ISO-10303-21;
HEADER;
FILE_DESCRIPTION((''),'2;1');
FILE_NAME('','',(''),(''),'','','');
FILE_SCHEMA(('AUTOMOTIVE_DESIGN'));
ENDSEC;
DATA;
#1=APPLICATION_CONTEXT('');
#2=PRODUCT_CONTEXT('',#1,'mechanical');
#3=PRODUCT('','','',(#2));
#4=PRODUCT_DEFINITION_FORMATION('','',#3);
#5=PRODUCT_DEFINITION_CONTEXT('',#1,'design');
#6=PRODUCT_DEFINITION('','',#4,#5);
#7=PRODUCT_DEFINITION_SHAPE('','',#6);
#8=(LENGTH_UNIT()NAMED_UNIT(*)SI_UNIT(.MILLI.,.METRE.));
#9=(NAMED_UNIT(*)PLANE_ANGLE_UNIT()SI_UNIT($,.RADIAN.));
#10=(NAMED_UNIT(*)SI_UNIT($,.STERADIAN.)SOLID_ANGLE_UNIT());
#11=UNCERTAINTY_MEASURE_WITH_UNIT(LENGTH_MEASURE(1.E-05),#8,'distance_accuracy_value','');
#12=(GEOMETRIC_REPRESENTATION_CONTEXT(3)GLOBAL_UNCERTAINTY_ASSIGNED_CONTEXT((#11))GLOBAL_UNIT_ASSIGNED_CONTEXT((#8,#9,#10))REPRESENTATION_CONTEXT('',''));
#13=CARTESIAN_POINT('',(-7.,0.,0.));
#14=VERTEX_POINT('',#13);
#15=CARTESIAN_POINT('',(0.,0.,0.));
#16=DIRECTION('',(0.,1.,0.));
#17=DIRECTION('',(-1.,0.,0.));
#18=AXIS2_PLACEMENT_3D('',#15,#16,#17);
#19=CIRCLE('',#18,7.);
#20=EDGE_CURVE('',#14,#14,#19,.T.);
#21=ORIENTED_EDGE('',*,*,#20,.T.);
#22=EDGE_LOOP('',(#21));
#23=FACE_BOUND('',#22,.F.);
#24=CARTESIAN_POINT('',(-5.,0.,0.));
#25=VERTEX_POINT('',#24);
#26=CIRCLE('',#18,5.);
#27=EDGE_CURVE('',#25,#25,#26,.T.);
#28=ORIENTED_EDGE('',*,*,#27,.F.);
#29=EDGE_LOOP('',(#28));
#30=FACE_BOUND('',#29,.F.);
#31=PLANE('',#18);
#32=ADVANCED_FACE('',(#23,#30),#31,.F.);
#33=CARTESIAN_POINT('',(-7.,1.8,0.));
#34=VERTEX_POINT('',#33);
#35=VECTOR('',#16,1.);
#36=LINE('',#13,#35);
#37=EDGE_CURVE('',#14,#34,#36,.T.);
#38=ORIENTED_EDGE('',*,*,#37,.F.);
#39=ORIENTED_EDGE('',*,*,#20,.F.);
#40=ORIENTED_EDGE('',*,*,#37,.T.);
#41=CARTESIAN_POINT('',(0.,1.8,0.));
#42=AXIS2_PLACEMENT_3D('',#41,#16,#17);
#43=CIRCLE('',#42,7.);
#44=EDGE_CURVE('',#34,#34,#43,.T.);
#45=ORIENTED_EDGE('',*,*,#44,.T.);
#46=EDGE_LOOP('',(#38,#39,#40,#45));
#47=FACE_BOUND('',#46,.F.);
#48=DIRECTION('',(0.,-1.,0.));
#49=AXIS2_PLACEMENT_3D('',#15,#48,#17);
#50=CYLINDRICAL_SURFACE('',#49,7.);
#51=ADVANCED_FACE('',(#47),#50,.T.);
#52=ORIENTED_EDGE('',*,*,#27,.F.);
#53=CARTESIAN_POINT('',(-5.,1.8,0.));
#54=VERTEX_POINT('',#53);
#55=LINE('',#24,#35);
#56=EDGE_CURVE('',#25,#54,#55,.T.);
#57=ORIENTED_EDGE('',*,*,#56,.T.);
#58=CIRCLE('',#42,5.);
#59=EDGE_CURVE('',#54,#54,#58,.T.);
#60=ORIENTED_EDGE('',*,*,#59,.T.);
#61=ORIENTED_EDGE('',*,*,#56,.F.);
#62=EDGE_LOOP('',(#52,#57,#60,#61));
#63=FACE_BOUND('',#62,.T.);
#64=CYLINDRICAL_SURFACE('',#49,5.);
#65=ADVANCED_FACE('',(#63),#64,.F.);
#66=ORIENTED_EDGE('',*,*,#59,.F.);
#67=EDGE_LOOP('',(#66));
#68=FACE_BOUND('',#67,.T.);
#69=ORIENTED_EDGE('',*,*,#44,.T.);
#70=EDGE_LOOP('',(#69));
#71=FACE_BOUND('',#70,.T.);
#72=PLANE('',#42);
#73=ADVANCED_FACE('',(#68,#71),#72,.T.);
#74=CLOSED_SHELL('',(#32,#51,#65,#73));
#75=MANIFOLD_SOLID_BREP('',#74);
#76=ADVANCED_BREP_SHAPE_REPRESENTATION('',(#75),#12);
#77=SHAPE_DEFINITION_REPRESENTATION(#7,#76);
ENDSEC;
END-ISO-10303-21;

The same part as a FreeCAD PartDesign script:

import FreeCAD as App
import Part
import Sketcher

V = App.Vector
Q = App.Units.Quantity

doc = App.newDocument("Part")
body = doc.addObject("PartDesign::Body", "Body")

# Sketch on XZ plane
sketch1 = body.newObject("Sketcher::SketchObject", "Sketch")
sketch1.AttachmentSupport = (doc.getObject("XZ_Plane"), [""])
sketch1.MapMode = "FlatFace"
sketch1.addGeometry([
    Part.Circle(V(0, 0, 0), V(0, 0, 1), 7),
    Part.Circle(V(0, 0, 0), V(0, 0, 1), 5),
], False)
sketch1.addConstraint([
    Sketcher.Constraint("Coincident", 0, 3, -1, 1),
    Sketcher.Constraint("Coincident", 1, 3, -1, 1),
    Sketcher.Constraint("Diameter", 0, Q("14 mm")),
    Sketcher.Constraint("Diameter", 1, Q("10 mm")),
])
pad1 = body.newObject("PartDesign::Pad", "Pad")
pad1.Profile = sketch1
pad1.Length = 1.8
pad1.Reversed = True

doc.recompute()
